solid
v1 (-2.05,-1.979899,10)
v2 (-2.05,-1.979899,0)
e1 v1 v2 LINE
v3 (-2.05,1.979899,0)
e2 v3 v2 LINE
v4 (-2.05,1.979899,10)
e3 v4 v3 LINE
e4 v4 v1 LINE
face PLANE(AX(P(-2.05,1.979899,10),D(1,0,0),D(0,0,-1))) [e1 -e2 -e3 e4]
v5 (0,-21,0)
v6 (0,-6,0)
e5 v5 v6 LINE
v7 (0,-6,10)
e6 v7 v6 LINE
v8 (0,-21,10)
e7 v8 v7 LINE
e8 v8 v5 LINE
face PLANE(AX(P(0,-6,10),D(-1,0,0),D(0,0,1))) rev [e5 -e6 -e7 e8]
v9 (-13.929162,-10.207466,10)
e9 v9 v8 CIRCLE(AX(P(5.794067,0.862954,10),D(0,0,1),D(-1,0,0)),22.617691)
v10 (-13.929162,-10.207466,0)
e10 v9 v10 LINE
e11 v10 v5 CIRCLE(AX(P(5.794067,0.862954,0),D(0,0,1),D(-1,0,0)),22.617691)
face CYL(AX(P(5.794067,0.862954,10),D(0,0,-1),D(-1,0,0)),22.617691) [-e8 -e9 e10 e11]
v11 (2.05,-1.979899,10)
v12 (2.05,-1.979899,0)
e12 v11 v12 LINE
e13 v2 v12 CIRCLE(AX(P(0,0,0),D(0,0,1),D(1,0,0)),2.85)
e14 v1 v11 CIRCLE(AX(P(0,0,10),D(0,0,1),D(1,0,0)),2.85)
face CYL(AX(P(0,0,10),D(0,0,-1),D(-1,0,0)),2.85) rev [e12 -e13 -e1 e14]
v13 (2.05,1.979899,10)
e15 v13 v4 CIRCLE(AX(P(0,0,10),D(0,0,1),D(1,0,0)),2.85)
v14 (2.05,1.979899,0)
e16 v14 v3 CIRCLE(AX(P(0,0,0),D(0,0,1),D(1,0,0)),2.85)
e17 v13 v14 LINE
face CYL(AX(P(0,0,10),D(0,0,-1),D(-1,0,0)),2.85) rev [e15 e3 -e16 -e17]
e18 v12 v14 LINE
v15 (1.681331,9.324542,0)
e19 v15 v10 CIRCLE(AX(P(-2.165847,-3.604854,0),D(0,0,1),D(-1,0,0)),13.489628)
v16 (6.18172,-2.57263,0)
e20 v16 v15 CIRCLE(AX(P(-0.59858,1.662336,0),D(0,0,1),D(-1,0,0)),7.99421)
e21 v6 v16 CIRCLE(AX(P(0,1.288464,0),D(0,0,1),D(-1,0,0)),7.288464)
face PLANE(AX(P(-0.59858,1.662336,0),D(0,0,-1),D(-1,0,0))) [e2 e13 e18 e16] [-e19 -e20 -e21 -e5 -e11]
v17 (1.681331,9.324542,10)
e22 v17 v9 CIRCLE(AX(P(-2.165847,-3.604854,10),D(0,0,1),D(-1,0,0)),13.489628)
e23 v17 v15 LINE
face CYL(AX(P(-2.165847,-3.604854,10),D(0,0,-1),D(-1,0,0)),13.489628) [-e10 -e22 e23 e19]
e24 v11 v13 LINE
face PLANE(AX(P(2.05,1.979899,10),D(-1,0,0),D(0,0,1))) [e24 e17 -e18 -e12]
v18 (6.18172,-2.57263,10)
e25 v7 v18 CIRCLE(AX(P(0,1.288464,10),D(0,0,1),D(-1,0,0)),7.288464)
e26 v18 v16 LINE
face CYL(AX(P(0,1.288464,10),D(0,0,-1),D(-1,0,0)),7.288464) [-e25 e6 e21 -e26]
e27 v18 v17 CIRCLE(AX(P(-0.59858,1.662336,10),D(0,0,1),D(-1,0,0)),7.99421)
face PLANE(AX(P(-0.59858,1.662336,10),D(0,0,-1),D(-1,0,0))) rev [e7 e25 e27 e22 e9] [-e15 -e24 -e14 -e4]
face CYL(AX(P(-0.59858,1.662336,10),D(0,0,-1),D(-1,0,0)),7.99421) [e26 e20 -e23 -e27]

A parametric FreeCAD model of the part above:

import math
import FreeCAD as App
import Part
import Sketcher

V = App.Vector
Q = App.Units.Quantity

doc = App.newDocument("Part")
body = doc.addObject("PartDesign::Body", "Body")

sketch1 = body.newObject("Sketcher::SketchObject", "Sketch")
sketch1.AttachmentSupport = (doc.getObject("XY_Plane"), [""])
sketch1.MapMode = "FlatFace"
sketch1.addGeometry([
    Part.LineSegment(V(0, -21, 0), V(0, -6, 0)),
    Part.ArcOfCircle(Part.Circle(V(0, 1.3, 0), V(0, 0, 1), 7.3), math.radians(-90), math.radians(-32)),
    Part.ArcOfCircle(Part.Circle(V(-0.6, 1.7, 0), V(0, 0, 1), 8), math.radians(-32), math.radians(73)),
    Part.ArcOfCircle(Part.Circle(V(-2.2, -3.6, 0), V(0, 0, 1), 13.5), math.radians(73), math.radians(209)),
    Part.ArcOfCircle(Part.Circle(V(5.8, 0.9, 0), V(0, 0, 1), 22.6), math.radians(-151), math.radians(-105)),
    Part.ArcOfCircle(Part.Circle(V(0, 0, 0), V(0, 0, 1), 2.8), math.radians(44), math.radians(136)),
    Part.LineSegment(V(2, 2, 0), V(2, -2, 0)),
    Part.ArcOfCircle(Part.Circle(V(0, 0, 0), V(0, 0, 1), 2.8), math.radians(-136), math.radians(-44)),
    Part.LineSegment(V(-2, -2, 0), V(-2, 2, 0)),
], False)
sketch1.addConstraint([
    Sketcher.Constraint("Coincident", 0, 2, 1, 1),
    Sketcher.Constraint("Tangent", 1, 2, 2, 1),
    Sketcher.Constraint("Tangent", 2, 2, 3, 1),
    Sketcher.Constraint("Tangent", 3, 2, 4, 1),
    Sketcher.Constraint("Coincident", 4, 2, 0, 1),
    Sketcher.Constraint("Coincident", 5, 1, 6, 1),
    Sketcher.Constraint("Coincident", 6, 2, 7, 2),
    Sketcher.Constraint("Coincident", 7, 1, 8, 1),
    Sketcher.Constraint("Coincident", 8, 2, 5, 2),
    Sketcher.Constraint("Vertical", 0),
    Sketcher.Constraint("Vertical", 6),
    Sketcher.Constraint("Vertical", 8),
    Sketcher.Constraint("Coincident", 5, 3, -1, 1),
    Sketcher.Constraint("Coincident", 7, 3, -1, 1),
    Sketcher.Constraint("Equal", 5, 7),
    Sketcher.Constraint("PointOnObject", 1, 3, -2),
    Sketcher.Constraint("PointOnObject", 0, 2, -2),
    Sketcher.Constraint("Horizontal", 6, 2, 7, 1),
    Sketcher.Constraint("DistanceY", 0, 1, 0, 2, Q("15 mm")),
    Sketcher.Constraint("Radius", 5, Q("2.85 mm")),
    Sketcher.Constraint("DistanceY", 0, 2, -1, 1, Q("6 mm")),
    Sketcher.Constraint("DistanceX", -1, 1, 5, 1, Q("2.05 mm")),
    Sketcher.Constraint("Radius", 2, Q("7.99421 mm")),
    Sketcher.Constraint("Radius", 3, Q("13.489628 mm")),
    Sketcher.Constraint("Radius", 4, Q("22.617691 mm")),
    Sketcher.Constraint("Radius", 1, Q("7.288464 mm")),
    Sketcher.Constraint("DistanceX", 2, 3, -1, 1, Q("0.59858 mm")),
    Sketcher.Constraint("DistanceX", -1, 1, 2, 2, Q("1.681331 mm")),
])
pad1 = body.newObject("PartDesign::Pad", "Pad")
pad1.Profile = sketch1
pad1.Length = 10

doc.recompute()
